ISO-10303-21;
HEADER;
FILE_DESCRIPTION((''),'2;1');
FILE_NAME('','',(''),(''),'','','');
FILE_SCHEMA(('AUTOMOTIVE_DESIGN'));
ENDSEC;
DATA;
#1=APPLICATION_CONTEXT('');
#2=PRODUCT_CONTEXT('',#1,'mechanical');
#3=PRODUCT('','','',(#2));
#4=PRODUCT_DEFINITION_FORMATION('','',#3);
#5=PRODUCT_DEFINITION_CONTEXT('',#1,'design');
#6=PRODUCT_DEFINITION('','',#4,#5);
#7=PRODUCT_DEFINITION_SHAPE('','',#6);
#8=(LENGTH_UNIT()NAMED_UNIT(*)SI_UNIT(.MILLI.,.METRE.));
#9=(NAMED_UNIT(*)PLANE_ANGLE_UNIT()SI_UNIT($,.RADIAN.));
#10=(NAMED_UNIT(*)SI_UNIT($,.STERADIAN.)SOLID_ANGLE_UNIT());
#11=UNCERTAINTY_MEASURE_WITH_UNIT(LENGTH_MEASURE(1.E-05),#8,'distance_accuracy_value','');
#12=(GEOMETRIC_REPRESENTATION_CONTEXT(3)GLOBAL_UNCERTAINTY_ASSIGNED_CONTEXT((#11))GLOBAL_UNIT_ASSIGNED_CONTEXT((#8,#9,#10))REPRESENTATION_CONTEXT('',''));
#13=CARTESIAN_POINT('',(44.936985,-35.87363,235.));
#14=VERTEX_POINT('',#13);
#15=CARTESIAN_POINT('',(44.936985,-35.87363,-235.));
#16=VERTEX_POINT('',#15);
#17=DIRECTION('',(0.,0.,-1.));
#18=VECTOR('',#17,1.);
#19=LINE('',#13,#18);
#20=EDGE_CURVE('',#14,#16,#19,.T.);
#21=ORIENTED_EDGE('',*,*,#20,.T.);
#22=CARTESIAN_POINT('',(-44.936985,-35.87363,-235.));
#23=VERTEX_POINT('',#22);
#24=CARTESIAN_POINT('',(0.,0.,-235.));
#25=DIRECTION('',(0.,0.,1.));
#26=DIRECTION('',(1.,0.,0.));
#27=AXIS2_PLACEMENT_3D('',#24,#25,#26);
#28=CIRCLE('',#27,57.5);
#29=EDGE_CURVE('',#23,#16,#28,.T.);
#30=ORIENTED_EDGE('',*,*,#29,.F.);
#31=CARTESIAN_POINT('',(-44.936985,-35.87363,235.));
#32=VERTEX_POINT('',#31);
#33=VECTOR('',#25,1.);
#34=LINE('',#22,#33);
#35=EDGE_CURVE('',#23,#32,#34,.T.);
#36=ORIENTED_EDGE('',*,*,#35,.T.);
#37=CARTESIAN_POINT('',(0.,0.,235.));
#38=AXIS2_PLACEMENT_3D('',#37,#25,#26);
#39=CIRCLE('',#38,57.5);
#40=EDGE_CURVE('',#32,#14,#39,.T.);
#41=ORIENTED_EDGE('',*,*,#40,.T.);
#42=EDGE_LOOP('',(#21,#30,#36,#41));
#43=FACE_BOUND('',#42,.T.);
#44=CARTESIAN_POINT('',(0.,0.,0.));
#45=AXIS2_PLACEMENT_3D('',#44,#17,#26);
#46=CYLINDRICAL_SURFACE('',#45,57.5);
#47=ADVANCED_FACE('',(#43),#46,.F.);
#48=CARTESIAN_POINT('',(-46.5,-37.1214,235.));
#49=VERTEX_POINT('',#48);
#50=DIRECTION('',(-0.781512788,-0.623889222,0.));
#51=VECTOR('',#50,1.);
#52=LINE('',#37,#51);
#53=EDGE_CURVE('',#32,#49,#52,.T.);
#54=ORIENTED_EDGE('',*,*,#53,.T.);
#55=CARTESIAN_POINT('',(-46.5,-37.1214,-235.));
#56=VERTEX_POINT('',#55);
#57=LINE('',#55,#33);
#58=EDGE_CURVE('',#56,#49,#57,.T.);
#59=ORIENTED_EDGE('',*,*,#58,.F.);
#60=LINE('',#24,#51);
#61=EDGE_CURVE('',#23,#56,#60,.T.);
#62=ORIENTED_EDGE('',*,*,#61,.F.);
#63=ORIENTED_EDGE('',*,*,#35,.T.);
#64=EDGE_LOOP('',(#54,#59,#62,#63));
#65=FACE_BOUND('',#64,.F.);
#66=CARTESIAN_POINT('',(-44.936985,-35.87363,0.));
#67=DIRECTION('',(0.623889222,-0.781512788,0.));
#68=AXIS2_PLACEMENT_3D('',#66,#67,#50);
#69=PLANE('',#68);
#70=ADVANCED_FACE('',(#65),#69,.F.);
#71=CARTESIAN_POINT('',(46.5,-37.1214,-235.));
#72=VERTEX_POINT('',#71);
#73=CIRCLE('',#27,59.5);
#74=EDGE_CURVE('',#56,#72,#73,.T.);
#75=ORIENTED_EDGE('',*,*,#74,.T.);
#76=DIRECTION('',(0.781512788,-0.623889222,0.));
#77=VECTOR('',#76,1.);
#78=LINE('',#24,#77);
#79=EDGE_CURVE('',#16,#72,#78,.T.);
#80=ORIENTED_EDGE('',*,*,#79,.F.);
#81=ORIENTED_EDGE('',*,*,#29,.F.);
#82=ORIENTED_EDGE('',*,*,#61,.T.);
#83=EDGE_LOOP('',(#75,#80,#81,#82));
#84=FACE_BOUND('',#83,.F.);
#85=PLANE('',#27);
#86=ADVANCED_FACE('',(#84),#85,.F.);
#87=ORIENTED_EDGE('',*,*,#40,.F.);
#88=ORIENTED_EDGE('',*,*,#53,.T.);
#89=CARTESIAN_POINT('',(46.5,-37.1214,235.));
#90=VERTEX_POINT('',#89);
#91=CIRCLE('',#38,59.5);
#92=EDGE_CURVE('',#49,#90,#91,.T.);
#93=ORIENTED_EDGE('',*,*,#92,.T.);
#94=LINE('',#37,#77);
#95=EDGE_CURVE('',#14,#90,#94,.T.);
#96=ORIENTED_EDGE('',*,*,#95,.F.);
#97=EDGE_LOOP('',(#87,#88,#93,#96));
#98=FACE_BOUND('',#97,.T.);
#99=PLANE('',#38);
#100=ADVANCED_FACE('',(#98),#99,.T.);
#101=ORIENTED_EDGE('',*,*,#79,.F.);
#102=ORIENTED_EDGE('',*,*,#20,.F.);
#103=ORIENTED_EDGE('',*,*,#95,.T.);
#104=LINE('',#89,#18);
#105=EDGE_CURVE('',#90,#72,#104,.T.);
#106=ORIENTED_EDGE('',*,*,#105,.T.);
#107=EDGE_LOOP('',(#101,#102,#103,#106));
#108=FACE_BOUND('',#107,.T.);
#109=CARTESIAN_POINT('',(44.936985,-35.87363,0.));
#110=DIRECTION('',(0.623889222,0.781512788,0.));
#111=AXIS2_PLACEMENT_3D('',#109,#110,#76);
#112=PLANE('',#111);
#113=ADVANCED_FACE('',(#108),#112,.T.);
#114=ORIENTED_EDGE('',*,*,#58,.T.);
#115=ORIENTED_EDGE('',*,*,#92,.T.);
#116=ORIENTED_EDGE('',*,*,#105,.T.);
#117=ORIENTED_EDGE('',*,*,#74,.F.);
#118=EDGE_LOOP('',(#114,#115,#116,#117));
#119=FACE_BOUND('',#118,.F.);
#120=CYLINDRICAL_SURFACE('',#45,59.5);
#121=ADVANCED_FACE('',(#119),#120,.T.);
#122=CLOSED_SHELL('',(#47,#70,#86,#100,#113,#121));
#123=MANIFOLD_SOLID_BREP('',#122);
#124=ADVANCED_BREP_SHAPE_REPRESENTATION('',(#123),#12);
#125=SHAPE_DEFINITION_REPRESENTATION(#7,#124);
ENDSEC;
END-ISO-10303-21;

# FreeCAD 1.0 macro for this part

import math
import FreeCAD as App
import Part
import Sketcher

V = App.Vector
Q = App.Units.Quantity

doc = App.newDocument("Part")
params = doc.addObject("Spreadsheet::Sheet", "Params")
for row, (alias, value) in enumerate([
    ("sketch1_radius", "57.5 mm"),
    ("sketch1_length", "2 mm"),
    ("pad1_length", "470 mm"),
], start=1):
    params.set(f"A{row}", alias)
    params.set(f"B{row}", "=" + value)
    params.setAlias(f"B{row}", alias)

body = doc.addObject("PartDesign::Body", "Body")

sketch1 = body.newObject("Sketcher::SketchObject", "Sketch")
sketch1.AttachmentSupport = (doc.getObject("XY_Plane"), [""])
sketch1.MapMode = "FlatFace"
sketch1.addGeometry([
    Part.ArcOfCircle(Part.Circle(V(0, 0, 0), V(0, 0, 1), 57.5), math.radians(-141), math.radians(-39)),
    Part.LineSegment(V(-44.9, -35.9, 0), V(-46.5, -37.1, 0)),
    Part.ArcOfCircle(Part.Circle(V(0, 0, 0), V(0, 0, 1), 59.5), math.radians(-141), math.radians(-39)),
    Part.LineSegment(V(46.5, -37.1, 0), V(44.9, -35.9, 0)),
], False)
sketch1.addConstraint([
    Sketcher.Constraint("Coincident", 0, 1, 1, 1),
    Sketcher.Constraint("Coincident", 1, 2, 2, 1),
    Sketcher.Constraint("Coincident", 2, 2, 3, 1),
    Sketcher.Constraint("Coincident", 3, 2, 0, 2),
    Sketcher.Constraint("Coincident", 0, 3, -1, 1),
    Sketcher.Constraint("Coincident", 2, 3, -1, 1),
    Sketcher.Constraint("Horizontal", 1, 2, 2, 2),
    Sketcher.Constraint("Horizontal", 0, 1, 3, 2),
    Sketcher.Constraint("Radius", 0, Q("57.5 mm")),
    Sketcher.Constraint("Distance", 1, Q("2 mm")),
    Sketcher.Constraint("DistanceX", 1, 2, 2, 2, Q("93 mm")),
    Sketcher.Constraint("Angle", 1, Q("-141.3993 deg")),
])
sketch1.setExpression("Constraints[8]", "Params.sketch1_radius")
sketch1.setExpression("Constraints[9]", "Params.sketch1_length")
pad1 = body.newObject("PartDesign::Pad", "Pad")
pad1.Profile = sketch1
pad1.setExpression("Length", "Params.pad1_length")
pad1.Midplane = True

doc.recompute()
